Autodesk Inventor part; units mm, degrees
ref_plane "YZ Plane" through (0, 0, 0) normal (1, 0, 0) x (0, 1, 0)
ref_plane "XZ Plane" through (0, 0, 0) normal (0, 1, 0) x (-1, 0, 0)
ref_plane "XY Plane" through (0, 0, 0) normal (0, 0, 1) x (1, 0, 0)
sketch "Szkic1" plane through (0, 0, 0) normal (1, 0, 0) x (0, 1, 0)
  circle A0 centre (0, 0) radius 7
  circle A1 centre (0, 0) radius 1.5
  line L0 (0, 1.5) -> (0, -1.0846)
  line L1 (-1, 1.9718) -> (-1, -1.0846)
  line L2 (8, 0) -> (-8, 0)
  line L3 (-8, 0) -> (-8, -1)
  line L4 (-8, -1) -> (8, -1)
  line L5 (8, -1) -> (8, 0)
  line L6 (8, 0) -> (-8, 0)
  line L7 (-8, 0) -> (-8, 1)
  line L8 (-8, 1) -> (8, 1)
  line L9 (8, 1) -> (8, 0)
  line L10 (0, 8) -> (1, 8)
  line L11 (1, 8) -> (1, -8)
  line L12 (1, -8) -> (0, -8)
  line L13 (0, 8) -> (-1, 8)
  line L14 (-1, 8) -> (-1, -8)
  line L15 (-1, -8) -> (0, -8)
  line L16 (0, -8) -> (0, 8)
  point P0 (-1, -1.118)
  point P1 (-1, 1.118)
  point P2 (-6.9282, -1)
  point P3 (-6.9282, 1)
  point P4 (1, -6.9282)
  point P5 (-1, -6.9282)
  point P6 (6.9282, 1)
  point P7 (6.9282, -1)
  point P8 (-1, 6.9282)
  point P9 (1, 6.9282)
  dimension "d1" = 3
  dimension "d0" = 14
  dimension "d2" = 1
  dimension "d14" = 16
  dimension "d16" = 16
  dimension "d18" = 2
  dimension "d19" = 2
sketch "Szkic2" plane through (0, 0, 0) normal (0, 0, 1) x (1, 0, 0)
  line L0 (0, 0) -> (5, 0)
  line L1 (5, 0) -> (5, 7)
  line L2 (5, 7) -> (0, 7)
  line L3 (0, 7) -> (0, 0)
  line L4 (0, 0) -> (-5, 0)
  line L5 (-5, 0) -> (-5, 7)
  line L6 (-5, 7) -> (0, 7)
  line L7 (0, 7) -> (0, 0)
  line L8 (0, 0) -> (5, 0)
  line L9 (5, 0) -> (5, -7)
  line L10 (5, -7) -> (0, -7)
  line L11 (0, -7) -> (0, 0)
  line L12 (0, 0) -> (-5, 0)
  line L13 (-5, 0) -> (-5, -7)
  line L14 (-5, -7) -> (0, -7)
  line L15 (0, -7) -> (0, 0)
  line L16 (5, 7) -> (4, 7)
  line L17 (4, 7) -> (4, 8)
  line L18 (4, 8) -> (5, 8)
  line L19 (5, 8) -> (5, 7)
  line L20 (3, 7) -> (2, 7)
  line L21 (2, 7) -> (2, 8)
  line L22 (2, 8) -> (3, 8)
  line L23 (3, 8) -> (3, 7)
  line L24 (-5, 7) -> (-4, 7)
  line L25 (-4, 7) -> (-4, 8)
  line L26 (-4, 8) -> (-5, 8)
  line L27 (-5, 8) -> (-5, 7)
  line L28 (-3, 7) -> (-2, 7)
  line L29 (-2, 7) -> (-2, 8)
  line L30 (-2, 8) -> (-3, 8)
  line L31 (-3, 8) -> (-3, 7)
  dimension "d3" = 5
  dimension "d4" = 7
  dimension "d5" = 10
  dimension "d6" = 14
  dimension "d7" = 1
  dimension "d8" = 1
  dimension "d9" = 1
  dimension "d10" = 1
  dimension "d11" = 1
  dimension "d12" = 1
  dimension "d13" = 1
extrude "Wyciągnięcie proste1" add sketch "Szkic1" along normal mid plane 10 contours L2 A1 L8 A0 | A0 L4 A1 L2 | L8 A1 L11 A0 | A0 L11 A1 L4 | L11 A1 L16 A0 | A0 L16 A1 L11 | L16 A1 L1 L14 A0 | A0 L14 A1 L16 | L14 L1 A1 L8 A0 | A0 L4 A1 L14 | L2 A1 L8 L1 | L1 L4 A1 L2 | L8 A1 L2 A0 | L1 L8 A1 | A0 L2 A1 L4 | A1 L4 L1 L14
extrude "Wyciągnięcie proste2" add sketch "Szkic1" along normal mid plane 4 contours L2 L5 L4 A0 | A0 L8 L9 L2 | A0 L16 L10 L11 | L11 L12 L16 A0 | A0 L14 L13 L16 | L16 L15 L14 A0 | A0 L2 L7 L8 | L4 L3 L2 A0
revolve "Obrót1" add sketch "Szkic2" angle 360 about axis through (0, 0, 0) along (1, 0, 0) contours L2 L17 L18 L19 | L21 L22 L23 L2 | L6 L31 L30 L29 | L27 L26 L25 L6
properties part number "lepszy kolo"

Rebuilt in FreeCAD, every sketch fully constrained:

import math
import FreeCAD as App
import Part
import Sketcher
from FreeCAD import Vector
Q = App.Units.Quantity


def add_polygon(sketch, points):
    """Adds a closed chain of lines whose ends are joined by coincident constraints."""
    first, n = sketch.GeometryCount, len(points)
    for a, b in zip(points, points[1:] + points[:1]):
        sketch.addGeometry(Part.LineSegment(App.Vector(*a, 0), App.Vector(*b, 0)), False)
    for i in range(n):
        sketch.addConstraint(Sketcher.Constraint("Coincident", first + i, 2, first + (i + 1) % n, 1))

doc = App.newDocument("Part")
body = doc.addObject("PartDesign::Body", "Body")

# Sketch on YZ plane
sketch1 = body.newObject("Sketcher::SketchObject", "Sketch")
sketch1.AttachmentSupport = (doc.getObject("YZ_Plane"), [""])
sketch1.MapMode = "FlatFace"
sketch1.addGeometry(Part.Circle(Vector(0, 0, 0), Vector(0, 0, 1), 7), False)
sketch1.addGeometry(Part.LineSegment(Vector(-1, -1.1, 0), Vector(-1, 1.1, 0)), False)
sketch1.addGeometry(Part.ArcOfCircle(Part.Circle(Vector(0, 0, 0), Vector(0, 0, 1), 1.5), math.radians(-132), math.radians(132)), False)
sketch1.addConstraint(Sketcher.Constraint("Coincident", 1, 1, 2, 1))
sketch1.addConstraint(Sketcher.Constraint("Coincident", 2, 2, 1, 2))
sketch1.addConstraint(Sketcher.Constraint("Vertical", 1))
sketch1.addConstraint(Sketcher.Constraint("Coincident", 0, 3, -1, 1))
sketch1.addConstraint(Sketcher.Constraint("Coincident", 2, 3, -1, 1))
sketch1.addConstraint(Sketcher.Constraint("Diameter", 0, Q("14 mm")))
sketch1.addConstraint(Sketcher.Constraint("Radius", 2, Q("1.5 mm")))
sketch1.addConstraint(Sketcher.Constraint("DistanceX", 1, 1, -1, 1, Q("1 mm")))
pad1 = body.newObject("PartDesign::Pad", "Pad")
pad1.Profile = sketch1
pad1.Length = 10
pad1.Midplane = True

# Sketch on YZ plane
sketch2 = body.newObject("Sketcher::SketchObject", "Sketch001")
sketch2.AttachmentSupport = (doc.getObject("YZ_Plane"), [""])
sketch2.MapMode = "FlatFace"
sketch2.addGeometry(Part.LineSegment(Vector(8, -1, 0), Vector(8, 1, 0)), False)
sketch2.addGeometry(Part.LineSegment(Vector(8, 1, 0), Vector(6.9, 1, 0)), False)
sketch2.addGeometry(Part.ArcOfCircle(Part.Circle(Vector(0, 0, 0), Vector(0, 0, 1), 7), math.radians(-8.21), math.radians(8.21)), False)
sketch2.addGeometry(Part.LineSegment(Vector(6.9, -1, 0), Vector(8, -1, 0)), False)
sketch2.addGeometry(Part.LineSegment(Vector(1, 6.9, 0), Vector(1, 8, 0)), False)
sketch2.addGeometry(Part.LineSegment(Vector(1, 8, 0), Vector(-1, 8, 0)), False)
sketch2.addGeometry(Part.LineSegment(Vector(-1, 8, 0), Vector(-1, 6.9, 0)), False)
sketch2.addGeometry(Part.ArcOfCircle(Part.Circle(Vector(0, 0, 0), Vector(0, 0, 1), 7), math.radians(81.79), math.radians(98.21)), False)
sketch2.addGeometry(Part.LineSegment(Vector(1, -8, 0), Vector(1, -6.9, 0)), False)
sketch2.addGeometry(Part.ArcOfCircle(Part.Circle(Vector(0, 0, 0), Vector(0, 0, 1), 7), math.radians(-98.21), math.radians(-81.79)), False)
sketch2.addGeometry(Part.LineSegment(Vector(-1, -6.9, 0), Vector(-1, -8, 0)), False)
sketch2.addGeometry(Part.LineSegment(Vector(-1, -8, 0), Vector(1, -8, 0)), False)
sketch2.addGeometry(Part.LineSegment(Vector(-6.9, 1, 0), Vector(-8, 1, 0)), False)
sketch2.addGeometry(Part.LineSegment(Vector(-8, 1, 0), Vector(-8, -1, 0)), False)
sketch2.addGeometry(Part.LineSegment(Vector(-8, -1, 0), Vector(-6.9, -1, 0)), False)
sketch2.addGeometry(Part.ArcOfCircle(Part.Circle(Vector(0, 0, 0), Vector(0, 0, 1), 7), math.radians(171.79), math.radians(188.21)), False)
sketch2.addConstraint(Sketcher.Constraint("Coincident", 0, 2, 1, 1))
sketch2.addConstraint(Sketcher.Constraint("Coincident", 1, 2, 2, 2))
sketch2.addConstraint(Sketcher.Constraint("Coincident", 2, 1, 3, 1))
sketch2.addConstraint(Sketcher.Constraint("Coincident", 3, 2, 0, 1))
sketch2.addConstraint(Sketcher.Constraint("Coincident", 4, 2, 5, 1))
sketch2.addConstraint(Sketcher.Constraint("Coincident", 5, 2, 6, 1))
sketch2.addConstraint(Sketcher.Constraint("Coincident", 6, 2, 7, 2))
sketch2.addConstraint(Sketcher.Constraint("Coincident", 7, 1, 4, 1))
sketch2.addConstraint(Sketcher.Constraint("Coincident", 8, 2, 9, 2))
sketch2.addConstraint(Sketcher.Constraint("Coincident", 9, 1, 10, 1))
sketch2.addConstraint(Sketcher.Constraint("Coincident", 10, 2, 11, 1))
sketch2.addConstraint(Sketcher.Constraint("Coincident", 11, 2, 8, 1))
sketch2.addConstraint(Sketcher.Constraint("Coincident", 12, 2, 13, 1))
sketch2.addConstraint(Sketcher.Constraint("Coincident", 13, 2, 14, 1))
sketch2.addConstraint(Sketcher.Constraint("Coincident", 14, 2, 15, 2))
sketch2.addConstraint(Sketcher.Constraint("Coincident", 15, 1, 12, 1))
sketch2.addConstraint(Sketcher.Constraint("Vertical", 0))
sketch2.addConstraint(Sketcher.Constraint("Horizontal", 1))
sketch2.addConstraint(Sketcher.Constraint("Horizontal", 3))
sketch2.addConstraint(Sketcher.Constraint("Vertical", 4))
sketch2.addConstraint(Sketcher.Constraint("Horizontal", 5))
sketch2.addConstraint(Sketcher.Constraint("Vertical", 6))
sketch2.addConstraint(Sketcher.Constraint("Vertical", 8))
sketch2.addConstraint(Sketcher.Constraint("Vertical", 10))
sketch2.addConstraint(Sketcher.Constraint("Horizontal", 11))
sketch2.addConstraint(Sketcher.Constraint("Horizontal", 12))
sketch2.addConstraint(Sketcher.Constraint("Vertical", 13))
sketch2.addConstraint(Sketcher.Constraint("Horizontal", 14))
sketch2.addConstraint(Sketcher.Constraint("Coincident", 2, 3, -1, 1))
sketch2.addConstraint(Sketcher.Constraint("Coincident", 7, 3, -1, 1))
sketch2.addConstraint(Sketcher.Constraint("Coincident", 9, 3, -1, 1))
sketch2.addConstraint(Sketcher.Constraint("Coincident", 15, 3, -1, 1))
sketch2.addConstraint(Sketcher.Constraint("Equal", 2, 7))
sketch2.addConstraint(Sketcher.Constraint("Equal", 7, 9))
sketch2.addConstraint(Sketcher.Constraint("Equal", 9, 15))
sketch2.addConstraint(Sketcher.Constraint("Symmetric", 4, 2, 10, 2, -1, 1))
sketch2.addConstraint(Sketcher.Constraint("Symmetric", 3, 2, 12, 2, -1, 1))
sketch2.addConstraint(Sketcher.Constraint("Horizontal", 6, 2, 7, 1))
sketch2.addConstraint(Sketcher.Constraint("Horizontal", 8, 2, 9, 1))
sketch2.addConstraint(Sketcher.Constraint("Horizontal", 1, 2, 12, 2))
sketch2.addConstraint(Sketcher.Constraint("Horizontal", 3, 2, 13, 2))
sketch2.addConstraint(Sketcher.Constraint("Equal", 11, 0))
sketch2.addConstraint(Sketcher.Constraint("Equal", 14, 4))
sketch2.addConstraint(Sketcher.Constraint("Radius", 2, Q("7 mm")))
sketch2.addConstraint(Sketcher.Constraint("DistanceX", 5, 2, 5, 1, Q("2 mm")))
sketch2.addConstraint(Sketcher.Constraint("DistanceX", -1, 1, 0, 2, Q("8 mm")))
pad2 = body.newObject("PartDesign::Pad", "Pad001")
pad2.Profile = sketch2
pad2.Length = 4
pad2.Midplane = True

# Sketch on XY plane
sketch3 = body.newObject("Sketcher::SketchObject", "Sketch002")
sketch3.AttachmentSupport = (doc.getObject("XY_Plane"), [""])
sketch3.MapMode = "FlatFace"
add_polygon(sketch3, [(4, 7), (5, 7), (5, 8), (4, 8)])  # lines 0-3
add_polygon(sketch3, [(2, 8), (2, 7), (3, 7), (3, 8)])  # lines 4-7
add_polygon(sketch3, [(-3, 7), (-2, 7), (-2, 8), (-3, 8)])  # lines 8-11
add_polygon(sketch3, [(-5, 8), (-5, 7), (-4, 7), (-4, 8)])  # lines 12-15
sketch3.addConstraint(Sketcher.Constraint("Horizontal", 0))
sketch3.addConstraint(Sketcher.Constraint("Vertical", 1))
sketch3.addConstraint(Sketcher.Constraint("Horizontal", 2))
sketch3.addConstraint(Sketcher.Constraint("Vertical", 3))
sketch3.addConstraint(Sketcher.Constraint("Vertical", 4))
sketch3.addConstraint(Sketcher.Constraint("Horizontal", 5))
sketch3.addConstraint(Sketcher.Constraint("Vertical", 6))
sketch3.addConstraint(Sketcher.Constraint("Horizontal", 7))
sketch3.addConstraint(Sketcher.Constraint("Horizontal", 8))
sketch3.addConstraint(Sketcher.Constraint("Vertical", 9))
sketch3.addConstraint(Sketcher.Constraint("Horizontal", 10))
sketch3.addConstraint(Sketcher.Constraint("Vertical", 11))
sketch3.addConstraint(Sketcher.Constraint("Vertical", 12))
sketch3.addConstraint(Sketcher.Constraint("Horizontal", 13))
sketch3.addConstraint(Sketcher.Constraint("Vertical", 14))
sketch3.addConstraint(Sketcher.Constraint("Horizontal", 15))
sketch3.addConstraint(Sketcher.Constraint("Symmetric", 4, 2, 8, 2, -2))
sketch3.addConstraint(Sketcher.Constraint("Symmetric", 6, 2, 10, 2, -2))
sketch3.addConstraint(Sketcher.Constraint("Symmetric", 0, 2, 12, 2, -2))
sketch3.addConstraint(Sketcher.Constraint("Symmetric", 2, 2, 14, 2, -2))
sketch3.addConstraint(Sketcher.Constraint("Horizontal", 3, 2, 4, 2))
sketch3.addConstraint(Sketcher.Constraint("Horizontal", 2, 2, 6, 2))
sketch3.addConstraint(Sketcher.Constraint("Equal", 2, 5))
sketch3.addConstraint(Sketcher.Constraint("Equal", 15, 1))
sketch3.addConstraint(Sketcher.Constraint("DistanceX", 0, 1, 0, 2, Q("1 mm")))
sketch3.addConstraint(Sketcher.Constraint("DistanceX", -1, 1, 0, 2, Q("5 mm")))
sketch3.addConstraint(Sketcher.Constraint("DistanceY", -1, 1, 0, 2, Q("7 mm")))
sketch3.addConstraint(Sketcher.Constraint("DistanceX", 5, 2, 3, 2, Q("1 mm")))
revolution = body.newObject("PartDesign::Revolution", "Revolution")
revolution.Profile = sketch3
revolution.ReferenceAxis = (sketch3, ["H_Axis"])
revolution.Angle = 360

doc.recompute()
